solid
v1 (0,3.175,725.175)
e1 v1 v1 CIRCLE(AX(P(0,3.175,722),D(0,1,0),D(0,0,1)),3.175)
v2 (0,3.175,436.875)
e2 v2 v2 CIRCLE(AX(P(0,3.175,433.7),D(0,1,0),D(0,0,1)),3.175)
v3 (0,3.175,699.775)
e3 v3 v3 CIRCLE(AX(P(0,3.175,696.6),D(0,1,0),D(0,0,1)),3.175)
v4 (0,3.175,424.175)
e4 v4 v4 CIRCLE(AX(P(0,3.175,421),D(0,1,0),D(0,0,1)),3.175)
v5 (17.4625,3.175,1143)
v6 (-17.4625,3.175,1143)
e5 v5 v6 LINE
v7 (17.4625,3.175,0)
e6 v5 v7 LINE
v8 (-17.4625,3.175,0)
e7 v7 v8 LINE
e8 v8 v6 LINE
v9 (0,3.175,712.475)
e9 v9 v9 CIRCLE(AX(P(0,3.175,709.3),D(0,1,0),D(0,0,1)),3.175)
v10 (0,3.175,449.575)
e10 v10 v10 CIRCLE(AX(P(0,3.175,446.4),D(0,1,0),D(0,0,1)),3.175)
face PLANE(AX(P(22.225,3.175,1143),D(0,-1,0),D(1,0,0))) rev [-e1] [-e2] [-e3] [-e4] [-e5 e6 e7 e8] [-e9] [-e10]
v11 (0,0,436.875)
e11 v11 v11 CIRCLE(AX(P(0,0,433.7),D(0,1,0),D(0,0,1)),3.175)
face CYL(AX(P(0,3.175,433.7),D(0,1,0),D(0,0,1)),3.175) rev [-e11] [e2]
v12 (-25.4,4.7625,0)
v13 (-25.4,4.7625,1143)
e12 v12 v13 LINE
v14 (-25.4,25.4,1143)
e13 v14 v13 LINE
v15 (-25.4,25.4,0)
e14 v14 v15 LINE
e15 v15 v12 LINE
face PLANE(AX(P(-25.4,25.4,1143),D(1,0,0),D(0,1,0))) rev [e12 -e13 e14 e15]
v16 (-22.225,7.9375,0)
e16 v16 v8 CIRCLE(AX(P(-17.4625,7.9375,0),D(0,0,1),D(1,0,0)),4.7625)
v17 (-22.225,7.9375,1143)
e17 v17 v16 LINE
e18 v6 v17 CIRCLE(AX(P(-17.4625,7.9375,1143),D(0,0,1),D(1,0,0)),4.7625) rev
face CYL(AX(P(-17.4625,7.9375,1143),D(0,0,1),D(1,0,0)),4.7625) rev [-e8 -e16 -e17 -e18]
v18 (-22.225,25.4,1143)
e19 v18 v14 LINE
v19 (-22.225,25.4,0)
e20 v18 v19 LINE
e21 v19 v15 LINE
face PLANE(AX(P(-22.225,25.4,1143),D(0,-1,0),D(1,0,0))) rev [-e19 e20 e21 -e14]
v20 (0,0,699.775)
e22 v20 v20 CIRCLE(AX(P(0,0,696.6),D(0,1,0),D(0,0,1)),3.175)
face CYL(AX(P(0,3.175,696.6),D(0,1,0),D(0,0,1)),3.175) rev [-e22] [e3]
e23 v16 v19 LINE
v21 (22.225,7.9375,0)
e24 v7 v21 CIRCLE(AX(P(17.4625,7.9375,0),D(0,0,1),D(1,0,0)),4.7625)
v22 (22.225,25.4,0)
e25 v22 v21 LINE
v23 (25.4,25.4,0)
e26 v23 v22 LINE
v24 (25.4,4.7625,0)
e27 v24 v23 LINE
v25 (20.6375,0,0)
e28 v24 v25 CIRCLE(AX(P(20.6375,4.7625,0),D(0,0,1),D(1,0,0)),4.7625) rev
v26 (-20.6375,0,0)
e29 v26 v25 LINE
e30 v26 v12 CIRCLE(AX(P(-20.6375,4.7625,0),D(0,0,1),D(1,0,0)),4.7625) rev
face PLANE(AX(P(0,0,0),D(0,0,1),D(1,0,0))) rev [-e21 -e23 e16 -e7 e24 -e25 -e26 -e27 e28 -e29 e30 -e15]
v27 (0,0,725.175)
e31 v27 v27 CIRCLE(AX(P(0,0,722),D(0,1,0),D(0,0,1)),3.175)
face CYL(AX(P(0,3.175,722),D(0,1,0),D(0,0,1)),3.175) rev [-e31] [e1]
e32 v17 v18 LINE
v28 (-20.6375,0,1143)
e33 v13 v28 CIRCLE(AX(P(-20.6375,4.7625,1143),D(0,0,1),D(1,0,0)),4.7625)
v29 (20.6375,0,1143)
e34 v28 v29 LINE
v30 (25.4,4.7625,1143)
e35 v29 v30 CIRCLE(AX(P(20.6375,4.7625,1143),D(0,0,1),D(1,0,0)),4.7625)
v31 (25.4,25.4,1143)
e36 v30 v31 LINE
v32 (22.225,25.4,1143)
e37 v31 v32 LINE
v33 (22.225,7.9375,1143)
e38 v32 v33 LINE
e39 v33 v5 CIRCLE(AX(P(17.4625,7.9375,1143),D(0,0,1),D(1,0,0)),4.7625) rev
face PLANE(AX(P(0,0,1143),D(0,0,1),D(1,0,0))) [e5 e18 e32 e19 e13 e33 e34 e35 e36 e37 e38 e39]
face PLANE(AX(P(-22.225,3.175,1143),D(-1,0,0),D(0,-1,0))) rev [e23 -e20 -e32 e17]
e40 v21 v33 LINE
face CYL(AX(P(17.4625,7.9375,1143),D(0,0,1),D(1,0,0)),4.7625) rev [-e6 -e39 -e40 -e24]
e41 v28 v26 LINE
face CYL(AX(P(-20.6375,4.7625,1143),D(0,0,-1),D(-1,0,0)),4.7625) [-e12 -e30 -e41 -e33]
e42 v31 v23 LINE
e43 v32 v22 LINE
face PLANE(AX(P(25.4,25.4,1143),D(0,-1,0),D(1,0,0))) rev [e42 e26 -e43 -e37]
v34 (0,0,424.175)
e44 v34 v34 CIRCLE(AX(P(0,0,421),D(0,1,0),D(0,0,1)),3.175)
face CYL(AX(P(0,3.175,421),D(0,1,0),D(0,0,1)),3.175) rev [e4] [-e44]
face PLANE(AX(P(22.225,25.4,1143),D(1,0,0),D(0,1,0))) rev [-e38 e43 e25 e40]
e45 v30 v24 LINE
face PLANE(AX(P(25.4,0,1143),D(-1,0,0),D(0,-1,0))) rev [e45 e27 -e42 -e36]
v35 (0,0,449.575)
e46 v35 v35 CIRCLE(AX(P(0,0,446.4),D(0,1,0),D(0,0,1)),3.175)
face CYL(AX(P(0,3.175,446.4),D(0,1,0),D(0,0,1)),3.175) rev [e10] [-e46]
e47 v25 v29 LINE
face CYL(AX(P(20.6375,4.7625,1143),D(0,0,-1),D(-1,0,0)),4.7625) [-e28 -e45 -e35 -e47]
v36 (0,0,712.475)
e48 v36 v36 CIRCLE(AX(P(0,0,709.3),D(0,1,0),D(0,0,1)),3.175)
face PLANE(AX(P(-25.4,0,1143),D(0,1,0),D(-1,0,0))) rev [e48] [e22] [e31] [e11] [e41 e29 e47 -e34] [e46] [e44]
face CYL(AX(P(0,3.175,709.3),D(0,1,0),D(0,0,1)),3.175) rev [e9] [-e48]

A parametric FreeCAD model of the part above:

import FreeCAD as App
import Part
import Sketcher

V = App.Vector
Q = App.Units.Quantity


def edges_at(feature, points):
    """Names of the edges that pass closest to the given points."""
    edges = feature.Shape.Edges
    near = lambda p: min(range(len(edges)), key=lambda i: edges[i].distToShape(Part.Vertex(*p))[0])
    return sorted({f"Edge{near(p) + 1}" for p in points})

doc = App.newDocument("Part")
body = doc.addObject("PartDesign::Body", "Body")

sketch1 = body.newObject("Sketcher::SketchObject", "Sketch")
sketch1.AttachmentSupport = (doc.getObject("XY_Plane"), [""])
sketch1.MapMode = "FlatFace"
sketch1.addGeometry([
    Part.LineSegment(V(-25.4, 25.4, 0), V(-25.4, 0, 0)),
    Part.LineSegment(V(-25.4, 0, 0), V(25.4, 0, 0)),
    Part.LineSegment(V(25.4, 0, 0), V(25.4, 25.4, 0)),
    Part.LineSegment(V(25.4, 25.4, 0), V(22.2, 25.4, 0)),
    Part.LineSegment(V(22.2, 25.4, 0), V(22.2, 3.2, 0)),
    Part.LineSegment(V(22.2, 3.2, 0), V(-22.2, 3.2, 0)),
    Part.LineSegment(V(-22.2, 3.2, 0), V(-22.2, 25.4, 0)),
    Part.LineSegment(V(-22.2, 25.4, 0), V(-25.4, 25.4, 0)),
], False)
sketch1.addConstraint([
    Sketcher.Constraint("Coincident", 0, 2, 1, 1),
    Sketcher.Constraint("Coincident", 1, 2, 2, 1),
    Sketcher.Constraint("Coincident", 2, 2, 3, 1),
    Sketcher.Constraint("Coincident", 3, 2, 4, 1),
    Sketcher.Constraint("Coincident", 4, 2, 5, 1),
    Sketcher.Constraint("Coincident", 5, 2, 6, 1),
    Sketcher.Constraint("Coincident", 6, 2, 7, 1),
    Sketcher.Constraint("Coincident", 7, 2, 0, 1),
    Sketcher.Constraint("Vertical", 0),
    Sketcher.Constraint("Horizontal", 1),
    Sketcher.Constraint("Vertical", 2),
    Sketcher.Constraint("Horizontal", 3),
    Sketcher.Constraint("Vertical", 4),
    Sketcher.Constraint("Horizontal", 5),
    Sketcher.Constraint("Vertical", 6),
    Sketcher.Constraint("Horizontal", 7),
    Sketcher.Constraint("Symmetric", 0, 2, 1, 2, -1, 1),
    Sketcher.Constraint("Symmetric", 3, 2, 6, 2, -2),
    Sketcher.Constraint("DistanceX", 1, 1, 1, 2, Q("2 in")),
    Sketcher.Constraint("DistanceY", 0, 2, 0, 1, Q("1 in")),
    Sketcher.Constraint("DistanceX", 5, 2, 5, 1, Q("1.75 in")),
    Sketcher.Constraint("DistanceY", 4, 2, 4, 1, Q("0.875 in")),
])
pad1 = body.newObject("PartDesign::Pad", "Pad")
pad1.Profile = sketch1
pad1.Length = Q("45 in")
doc.recompute()

fillet = body.newObject("PartDesign::Fillet", "Fillet")
fillet.Base = (pad1, edges_at(pad1, [(-22.225, 3.175, 571.5), (22.225, 3.175, 571.5)]))
fillet.Radius = Q("0.1875 in")
doc.recompute()

fillet2 = body.newObject("PartDesign::Fillet", "Fillet001")
fillet2.Base = (fillet, edges_at(fillet, [(25.4, 0, 571.5), (-25.4, 0, 571.5)]))
fillet2.Radius = Q("0.1875 in")

sketch2 = body.newObject("Sketcher::SketchObject", "Sketch001")
sketch2.AttachmentSupport = (doc.getObject("XZ_Plane"), [""])
sketch2.MapMode = "FlatFace"
sketch2.AttachmentOffset = App.Placement(V(0, 0, -0.125 * 25.4), App.Rotation())
sketch2.addGeometry([
    Part.Circle(V(0, 722, 0), V(0, 0, 1), 3.2),
    Part.Circle(V(0, 709.3, 0), V(0, 0, 1), 3.2),
    Part.Circle(V(0, 696.6, 0), V(0, 0, 1), 3.2),
    Part.Circle(V(0, 446.4, 0), V(0, 0, 1), 3.2),
    Part.Circle(V(0, 433.7, 0), V(0, 0, 1), 3.2),
    Part.Circle(V(0, 421, 0), V(0, 0, 1), 3.2),
], False)
sketch2.addConstraint([
    Sketcher.Constraint("Equal", 0, 1),
    Sketcher.Constraint("Equal", 1, 2),
    Sketcher.Constraint("Equal", 2, 3),
    Sketcher.Constraint("Equal", 3, 4),
    Sketcher.Constraint("Equal", 4, 5),
    Sketcher.Constraint("PointOnObject", 0, 3, -2),
    Sketcher.Constraint("PointOnObject", 1, 3, -2),
    Sketcher.Constraint("PointOnObject", 2, 3, -2),
    Sketcher.Constraint("PointOnObject", 3, 3, -2),
    Sketcher.Constraint("PointOnObject", 4, 3, -2),
    Sketcher.Constraint("PointOnObject", 5, 3, -2),
    Sketcher.Constraint("Diameter", 0, Q("0.25 in")),
    Sketcher.Constraint("DistanceY", 2, 3, 0, 3, Q("1 in")),
    Sketcher.Constraint("DistanceY", 5, 3, 3, 3, Q("1 in")),
    Sketcher.Constraint("DistanceY", 1, 3, 0, 3, Q("0.5 in")),
    Sketcher.Constraint("DistanceY", 4, 3, 3, 3, Q("0.5 in")),
    Sketcher.Constraint("DistanceY", -1, 1, 0, 3, Q("722 mm")),
    Sketcher.Constraint("DistanceY", -1, 1, 3, 3, Q("446.4 mm")),
])
doc.recompute()
hole = body.newObject("PartDesign::Hole", "Hole")
hole.Profile = sketch2
hole.ThreadType = "None"
hole.Diameter = Q("0.25 in")
hole.DepthType = "ThroughAll"
hole.Reversed = True

doc.recompute()
